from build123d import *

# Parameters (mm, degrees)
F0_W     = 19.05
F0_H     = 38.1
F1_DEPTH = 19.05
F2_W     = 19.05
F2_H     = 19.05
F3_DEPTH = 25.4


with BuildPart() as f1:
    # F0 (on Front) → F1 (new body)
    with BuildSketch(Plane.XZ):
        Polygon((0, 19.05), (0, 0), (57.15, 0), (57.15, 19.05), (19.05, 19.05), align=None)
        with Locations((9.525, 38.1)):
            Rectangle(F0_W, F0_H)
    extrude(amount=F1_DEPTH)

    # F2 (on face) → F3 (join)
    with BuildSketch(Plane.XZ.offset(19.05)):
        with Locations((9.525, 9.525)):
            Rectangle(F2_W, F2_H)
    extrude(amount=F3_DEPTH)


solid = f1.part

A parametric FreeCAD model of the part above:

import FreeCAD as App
import Part
import Sketcher
from FreeCAD import Vector
Q = App.Units.Quantity


def add_polygon(sketch, points):
    """Adds a closed chain of lines whose ends are joined by coincident constraints."""
    first, n = sketch.GeometryCount, len(points)
    for a, b in zip(points, points[1:] + points[:1]):
        sketch.addGeometry(Part.LineSegment(App.Vector(*a, 0), App.Vector(*b, 0)), False)
    for i in range(n):
        sketch.addConstraint(Sketcher.Constraint("Coincident", first + i, 2, first + (i + 1) % n, 1))

doc = App.newDocument("Part")
body = doc.addObject("PartDesign::Body", "Body")

# Sketch on XZ plane
sketch1 = doc.addObject("Sketcher::SketchObject", "Sketch")
body.addObject(sketch1)
sketch1.AttachmentSupport = (doc.XZ_Plane, [""])
sketch1.MapMode = "FlatFace"
add_polygon(sketch1, [(0, 0), (57, 0), (57, 19), (19, 19), (19, 57), (0, 57)])  # lines 0-5
sketch1.addConstraint(Sketcher.Constraint("Horizontal", 0))
sketch1.addConstraint(Sketcher.Constraint("Vertical", 1))
sketch1.addConstraint(Sketcher.Constraint("Horizontal", 2))
sketch1.addConstraint(Sketcher.Constraint("Vertical", 3))
sketch1.addConstraint(Sketcher.Constraint("Horizontal", 4))
sketch1.addConstraint(Sketcher.Constraint("Vertical", 5))
sketch1.addConstraint(Sketcher.Constraint("Coincident", 5, 2, -1, 1))
sketch1.addConstraint(Sketcher.Constraint("Equal", 4, 1))
sketch1.addConstraint(Sketcher.Constraint("Equal", 2, 3))
sketch1.addConstraint(Sketcher.Constraint("DistanceX", 2, 2, 2, 1, Q("1.5 in")))
sketch1.addConstraint(Sketcher.Constraint("DistanceX", 0, 1, 0, 2, Q("2.25 in")))
pad1 = doc.addObject("PartDesign::Pad", "Pad")
body.addObject(pad1)
pad1.Profile = sketch1
pad1.Length = Q("0.75 in")

# Sketch on XZ plane
sketch2 = doc.addObject("Sketcher::SketchObject", "Sketch001")
body.addObject(sketch2)
sketch2.AttachmentSupport = (doc.XZ_Plane, [""])
sketch2.MapMode = "FlatFace"
sketch2.AttachmentOffset = App.Placement(Vector(0, 0, 0.75 * 25.4), App.Rotation())
add_polygon(sketch2, [(0, 19), (0, 0), (19, 0), (19, 19)])  # lines 0-3
sketch2.addConstraint(Sketcher.Constraint("Vertical", 0))
sketch2.addConstraint(Sketcher.Constraint("Horizontal", 1))
sketch2.addConstraint(Sketcher.Constraint("Vertical", 2))
sketch2.addConstraint(Sketcher.Constraint("Horizontal", 3))
sketch2.addConstraint(Sketcher.Constraint("Coincident", 0, 2, -1, 1))
sketch2.addConstraint(Sketcher.Constraint("Equal", 3, 0))
sketch2.addConstraint(Sketcher.Constraint("DistanceX", 1, 1, 1, 2, Q("0.75 in")))
pad2 = doc.addObject("PartDesign::Pad", "Pad001")
body.addObject(pad2)
pad2.Profile = sketch2
pad2.Length = Q("1 in")

doc.recompute()
